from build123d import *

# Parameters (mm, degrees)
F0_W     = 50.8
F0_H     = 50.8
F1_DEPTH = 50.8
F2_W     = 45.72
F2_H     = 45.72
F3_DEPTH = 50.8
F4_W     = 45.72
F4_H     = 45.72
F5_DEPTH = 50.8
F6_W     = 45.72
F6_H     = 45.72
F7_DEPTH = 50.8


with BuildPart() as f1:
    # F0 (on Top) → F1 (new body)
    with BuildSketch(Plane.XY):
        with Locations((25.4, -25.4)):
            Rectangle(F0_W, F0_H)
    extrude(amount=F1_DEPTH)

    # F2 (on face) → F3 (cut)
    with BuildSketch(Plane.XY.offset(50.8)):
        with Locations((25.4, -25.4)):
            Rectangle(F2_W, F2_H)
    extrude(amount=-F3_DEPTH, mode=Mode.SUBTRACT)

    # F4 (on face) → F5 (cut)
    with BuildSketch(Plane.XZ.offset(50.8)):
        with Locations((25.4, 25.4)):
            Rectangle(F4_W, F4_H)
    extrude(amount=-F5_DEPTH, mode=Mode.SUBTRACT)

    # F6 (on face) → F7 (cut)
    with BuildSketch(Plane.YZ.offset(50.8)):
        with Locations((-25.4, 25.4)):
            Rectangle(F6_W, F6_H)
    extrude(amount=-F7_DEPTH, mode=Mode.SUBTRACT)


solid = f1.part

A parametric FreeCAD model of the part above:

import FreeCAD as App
import Part
import Sketcher
from FreeCAD import Vector
Q = App.Units.Quantity

doc = App.newDocument("Part")
body = doc.addObject("PartDesign::Body", "Body")

# Sketch on XY plane
sketch1 = body.newObject("Sketcher::SketchObject", "Sketch")
sketch1.AttachmentSupport = (doc.getObject("XY_Plane"), [""])
sketch1.MapMode = "FlatFace"
sketch1.addGeometry([
    Part.LineSegment(Vector(0, 0, 0), Vector(0, -51, 0)),
    Part.LineSegment(Vector(0, -51, 0), Vector(51, -51, 0)),
    Part.LineSegment(Vector(51, -51, 0), Vector(51, 0, 0)),
    Part.LineSegment(Vector(51, 0, 0), Vector(0, 0, 0)),
], False)
sketch1.addConstraint([
    Sketcher.Constraint("Coincident", 0, 2, 1, 1),
    Sketcher.Constraint("Coincident", 1, 2, 2, 1),
    Sketcher.Constraint("Coincident", 2, 2, 3, 1),
    Sketcher.Constraint("Coincident", 3, 2, 0, 1),
    Sketcher.Constraint("Vertical", 0),
    Sketcher.Constraint("Horizontal", 1),
    Sketcher.Constraint("Vertical", 2),
    Sketcher.Constraint("Horizontal", 3),
    Sketcher.Constraint("Coincident", 3, 2, -1, 1),
    Sketcher.Constraint("Equal", 3, 0),
    Sketcher.Constraint("DistanceX", 1, 1, 1, 2, Q("2 in")),
])
pad1 = body.newObject("PartDesign::Pad", "Pad")
pad1.Profile = sketch1
pad1.Length = Q("2 in")

# Sketch on XY plane
sketch2 = body.newObject("Sketcher::SketchObject", "Sketch001")
sketch2.AttachmentSupport = (doc.getObject("XY_Plane"), [""])
sketch2.MapMode = "FlatFace"
sketch2.AttachmentOffset = App.Placement(Vector(0, 0, 2 * 25.4), App.Rotation())
sketch2.addGeometry([
    Part.LineSegment(Vector(3, -3, 0), Vector(3, -48, 0)),
    Part.LineSegment(Vector(3, -48, 0), Vector(48, -48, 0)),
    Part.LineSegment(Vector(48, -48, 0), Vector(48, -3, 0)),
    Part.LineSegment(Vector(48, -3, 0), Vector(3, -3, 0)),
], False)
sketch2.addConstraint([
    Sketcher.Constraint("Coincident", 0, 2, 1, 1),
    Sketcher.Constraint("Coincident", 1, 2, 2, 1),
    Sketcher.Constraint("Coincident", 2, 2, 3, 1),
    Sketcher.Constraint("Coincident", 3, 2, 0, 1),
    Sketcher.Constraint("Vertical", 0),
    Sketcher.Constraint("Horizontal", 1),
    Sketcher.Constraint("Vertical", 2),
    Sketcher.Constraint("Horizontal", 3),
    Sketcher.Constraint("Equal", 3, 0),
    Sketcher.Constraint("DistanceX", 1, 1, 1, 2, Q("1.8 in")),
    Sketcher.Constraint("DistanceX", -1, 1, 0, 2, Q("0.1 in")),
    Sketcher.Constraint("DistanceY", 0, 2, -1, 1, Q("1.9 in")),
])
pocket1 = body.newObject("PartDesign::Pocket", "Pocket")
pocket1.Profile = sketch2
pocket1.Length = Q("2 in")

# Sketch on XZ plane
sketch3 = body.newObject("Sketcher::SketchObject", "Sketch002")
sketch3.AttachmentSupport = (doc.getObject("XZ_Plane"), [""])
sketch3.MapMode = "FlatFace"
sketch3.AttachmentOffset = App.Placement(Vector(0, 0, 2 * 25.4), App.Rotation())
sketch3.addGeometry([
    Part.LineSegment(Vector(3, 48, 0), Vector(3, 3, 0)),
    Part.LineSegment(Vector(3, 3, 0), Vector(48, 3, 0)),
    Part.LineSegment(Vector(48, 3, 0), Vector(48, 48, 0)),
    Part.LineSegment(Vector(48, 48, 0), Vector(3, 48, 0)),
], False)
sketch3.addConstraint([
    Sketcher.Constraint("Coincident", 0, 2, 1, 1),
    Sketcher.Constraint("Coincident", 1, 2, 2, 1),
    Sketcher.Constraint("Coincident", 2, 2, 3, 1),
    Sketcher.Constraint("Coincident", 3, 2, 0, 1),
    Sketcher.Constraint("Vertical", 0),
    Sketcher.Constraint("Horizontal", 1),
    Sketcher.Constraint("Vertical", 2),
    Sketcher.Constraint("Horizontal", 3),
    Sketcher.Constraint("Equal", 3, 0),
    Sketcher.Constraint("DistanceX", 1, 1, 1, 2, Q("1.8 in")),
    Sketcher.Constraint("DistanceX", -1, 1, 0, 2, Q("0.1 in")),
    Sketcher.Constraint("DistanceY", -1, 1, 0, 2, Q("0.1 in")),
])
pocket2 = body.newObject("PartDesign::Pocket", "Pocket001")
pocket2.Profile = sketch3
pocket2.Length = Q("2 in")

# Sketch on YZ plane
sketch4 = body.newObject("Sketcher::SketchObject", "Sketch003")
sketch4.AttachmentSupport = (doc.getObject("YZ_Plane"), [""])
sketch4.MapMode = "FlatFace"
sketch4.AttachmentOffset = App.Placement(Vector(0, 0, 2 * 25.4), App.Rotation())
sketch4.addGeometry([
    Part.LineSegment(Vector(-48, 48, 0), Vector(-48, 3, 0)),
    Part.LineSegment(Vector(-48, 3, 0), Vector(-3, 3, 0)),
    Part.LineSegment(Vector(-3, 3, 0), Vector(-3, 48, 0)),
    Part.LineSegment(Vector(-3, 48, 0), Vector(-48, 48, 0)),
], False)
sketch4.addConstraint([
    Sketcher.Constraint("Coincident", 0, 2, 1, 1),
    Sketcher.Constraint("Coincident", 1, 2, 2, 1),
    Sketcher.Constraint("Coincident", 2, 2, 3, 1),
    Sketcher.Constraint("Coincident", 3, 2, 0, 1),
    Sketcher.Constraint("Vertical", 0),
    Sketcher.Constraint("Horizontal", 1),
    Sketcher.Constraint("Vertical", 2),
    Sketcher.Constraint("Horizontal", 3),
    Sketcher.Constraint("Equal", 3, 0),
    Sketcher.Constraint("DistanceX", 1, 1, 1, 2, Q("1.8 in")),
    Sketcher.Constraint("DistanceX", 0, 2, -1, 1, Q("1.9 in")),
    Sketcher.Constraint("DistanceY", -1, 1, 0, 2, Q("0.1 in")),
])
pocket3 = body.newObject("PartDesign::Pocket", "Pocket002")
pocket3.Profile = sketch4
pocket3.Length = Q("2 in")

doc.recompute()
